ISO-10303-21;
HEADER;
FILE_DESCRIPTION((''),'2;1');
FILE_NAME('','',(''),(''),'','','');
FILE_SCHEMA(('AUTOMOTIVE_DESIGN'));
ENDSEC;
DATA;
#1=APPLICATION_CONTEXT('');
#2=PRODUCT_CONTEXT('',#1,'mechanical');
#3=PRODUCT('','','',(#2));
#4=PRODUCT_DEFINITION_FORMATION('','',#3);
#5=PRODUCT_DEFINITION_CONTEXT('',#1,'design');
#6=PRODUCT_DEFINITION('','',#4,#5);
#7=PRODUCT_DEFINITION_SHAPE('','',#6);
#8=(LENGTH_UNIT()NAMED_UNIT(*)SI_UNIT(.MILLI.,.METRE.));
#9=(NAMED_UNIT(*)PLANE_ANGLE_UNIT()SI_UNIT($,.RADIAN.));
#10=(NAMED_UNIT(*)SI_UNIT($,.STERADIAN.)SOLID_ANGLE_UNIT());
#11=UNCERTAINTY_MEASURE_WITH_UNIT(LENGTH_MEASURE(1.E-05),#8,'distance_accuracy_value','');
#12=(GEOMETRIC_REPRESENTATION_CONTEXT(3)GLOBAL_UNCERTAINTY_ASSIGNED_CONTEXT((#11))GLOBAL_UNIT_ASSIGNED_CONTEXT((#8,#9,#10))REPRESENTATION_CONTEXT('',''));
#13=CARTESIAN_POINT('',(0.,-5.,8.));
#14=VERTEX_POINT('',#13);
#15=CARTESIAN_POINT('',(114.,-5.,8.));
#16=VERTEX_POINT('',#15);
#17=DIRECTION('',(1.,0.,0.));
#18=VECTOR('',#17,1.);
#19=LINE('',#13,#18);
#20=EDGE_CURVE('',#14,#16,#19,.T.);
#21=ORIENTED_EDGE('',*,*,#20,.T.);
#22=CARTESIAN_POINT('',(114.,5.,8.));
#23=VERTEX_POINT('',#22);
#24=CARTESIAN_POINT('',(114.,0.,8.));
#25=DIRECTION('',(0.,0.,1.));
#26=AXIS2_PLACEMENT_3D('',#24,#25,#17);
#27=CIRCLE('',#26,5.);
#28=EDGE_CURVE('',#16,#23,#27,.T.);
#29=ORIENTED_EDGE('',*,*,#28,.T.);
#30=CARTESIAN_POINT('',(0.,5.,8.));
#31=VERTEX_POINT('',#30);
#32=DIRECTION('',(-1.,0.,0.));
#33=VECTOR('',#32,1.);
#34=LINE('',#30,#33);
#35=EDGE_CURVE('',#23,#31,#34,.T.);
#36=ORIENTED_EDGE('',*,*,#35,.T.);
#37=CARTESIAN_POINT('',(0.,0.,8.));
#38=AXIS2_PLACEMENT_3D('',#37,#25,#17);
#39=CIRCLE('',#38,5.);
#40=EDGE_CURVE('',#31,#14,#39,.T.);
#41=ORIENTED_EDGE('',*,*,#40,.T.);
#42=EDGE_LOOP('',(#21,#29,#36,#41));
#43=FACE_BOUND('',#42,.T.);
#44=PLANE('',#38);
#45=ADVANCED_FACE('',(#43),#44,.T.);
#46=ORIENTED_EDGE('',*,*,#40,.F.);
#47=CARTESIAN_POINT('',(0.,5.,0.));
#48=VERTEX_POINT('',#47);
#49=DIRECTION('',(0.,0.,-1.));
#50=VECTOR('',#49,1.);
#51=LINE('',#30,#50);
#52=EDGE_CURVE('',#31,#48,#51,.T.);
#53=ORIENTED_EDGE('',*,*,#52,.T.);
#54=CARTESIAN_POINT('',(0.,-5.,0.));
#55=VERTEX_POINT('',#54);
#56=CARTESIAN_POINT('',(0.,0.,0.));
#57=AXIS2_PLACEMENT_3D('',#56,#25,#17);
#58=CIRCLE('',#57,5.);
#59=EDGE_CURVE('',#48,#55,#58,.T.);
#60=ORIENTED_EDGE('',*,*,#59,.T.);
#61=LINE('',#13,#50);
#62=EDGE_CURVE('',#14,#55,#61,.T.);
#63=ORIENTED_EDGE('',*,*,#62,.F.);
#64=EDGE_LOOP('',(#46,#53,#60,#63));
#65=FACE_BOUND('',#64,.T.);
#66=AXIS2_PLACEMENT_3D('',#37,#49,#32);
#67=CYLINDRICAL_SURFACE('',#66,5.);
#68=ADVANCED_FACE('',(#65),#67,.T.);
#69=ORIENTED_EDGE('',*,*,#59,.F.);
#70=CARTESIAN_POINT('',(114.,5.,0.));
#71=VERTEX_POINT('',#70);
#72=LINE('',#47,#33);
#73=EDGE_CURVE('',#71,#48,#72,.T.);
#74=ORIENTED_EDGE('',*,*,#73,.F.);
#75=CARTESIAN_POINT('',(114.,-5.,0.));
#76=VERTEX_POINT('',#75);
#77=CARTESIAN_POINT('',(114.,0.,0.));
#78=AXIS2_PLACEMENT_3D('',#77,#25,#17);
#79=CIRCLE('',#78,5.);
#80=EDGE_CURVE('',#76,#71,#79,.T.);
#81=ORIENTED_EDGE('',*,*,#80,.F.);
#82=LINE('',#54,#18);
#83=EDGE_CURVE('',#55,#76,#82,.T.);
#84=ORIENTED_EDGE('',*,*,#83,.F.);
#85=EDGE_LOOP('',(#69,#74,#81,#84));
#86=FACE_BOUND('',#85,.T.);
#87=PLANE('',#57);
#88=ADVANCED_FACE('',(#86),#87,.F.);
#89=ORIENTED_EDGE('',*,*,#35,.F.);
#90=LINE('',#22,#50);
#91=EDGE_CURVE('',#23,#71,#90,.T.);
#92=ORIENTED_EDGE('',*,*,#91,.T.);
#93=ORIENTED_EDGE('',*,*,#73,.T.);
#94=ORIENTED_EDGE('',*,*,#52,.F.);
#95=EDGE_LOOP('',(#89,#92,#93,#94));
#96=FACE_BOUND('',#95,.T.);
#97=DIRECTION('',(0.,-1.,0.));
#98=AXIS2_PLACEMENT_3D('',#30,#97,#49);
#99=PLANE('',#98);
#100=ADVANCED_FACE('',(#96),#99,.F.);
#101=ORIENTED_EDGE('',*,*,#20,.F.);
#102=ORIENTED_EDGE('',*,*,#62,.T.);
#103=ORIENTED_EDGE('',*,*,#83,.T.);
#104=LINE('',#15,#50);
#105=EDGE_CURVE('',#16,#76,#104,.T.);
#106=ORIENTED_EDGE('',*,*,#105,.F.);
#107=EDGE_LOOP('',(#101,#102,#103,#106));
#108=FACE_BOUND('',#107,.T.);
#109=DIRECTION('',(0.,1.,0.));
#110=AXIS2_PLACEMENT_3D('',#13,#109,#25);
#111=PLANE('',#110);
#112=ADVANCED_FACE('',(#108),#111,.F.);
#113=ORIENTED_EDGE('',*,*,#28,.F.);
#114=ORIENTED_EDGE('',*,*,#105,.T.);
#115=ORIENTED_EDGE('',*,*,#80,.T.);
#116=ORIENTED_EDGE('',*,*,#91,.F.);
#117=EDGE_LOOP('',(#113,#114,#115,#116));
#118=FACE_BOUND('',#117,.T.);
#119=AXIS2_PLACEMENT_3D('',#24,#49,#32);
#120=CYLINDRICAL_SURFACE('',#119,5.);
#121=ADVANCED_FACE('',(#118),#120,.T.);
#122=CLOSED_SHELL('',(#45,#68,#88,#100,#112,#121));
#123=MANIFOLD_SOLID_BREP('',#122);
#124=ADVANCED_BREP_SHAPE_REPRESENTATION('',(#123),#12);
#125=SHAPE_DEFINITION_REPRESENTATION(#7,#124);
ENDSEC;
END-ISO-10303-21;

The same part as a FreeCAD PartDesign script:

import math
import FreeCAD as App
import Part
import Sketcher
Q = App.Units.Quantity

doc = App.newDocument("Part")
body = doc.addObject("PartDesign::Body", "Body")

# Sketch on XY plane
sketch1 = body.newObject("Sketcher::SketchObject", "Sketch")
sketch1.AttachmentSupport = (doc.getObject("XY_Plane"), [""])
sketch1.MapMode = "FlatFace"
sketch1.addGeometry([
    Part.LineSegment(App.Vector(114, 5, 0), App.Vector(0, 5, 0)),
    Part.ArcOfCircle(Part.Circle(App.Vector(0, 0, 0), App.Vector(0, 0, 1), 5), math.radians(90), math.radians(270)),
    Part.LineSegment(App.Vector(0, -5, 0), App.Vector(114, -5, 0)),
    Part.ArcOfCircle(Part.Circle(App.Vector(114, 0, 0), App.Vector(0, 0, 1), 5), math.radians(-90), math.radians(90)),
], False)
sketch1.addConstraint([
    Sketcher.Constraint("Tangent", 0, 2, 1, 1),
    Sketcher.Constraint("Tangent", 1, 2, 2, 1),
    Sketcher.Constraint("Tangent", 2, 2, 3, 1),
    Sketcher.Constraint("Tangent", 3, 2, 0, 1),
    Sketcher.Constraint("Horizontal", 0),
    Sketcher.Constraint("Horizontal", 2),
    Sketcher.Constraint("Coincident", 1, 3, -1, 1),
    Sketcher.Constraint("Radius", 1, Q("5 mm")),
    Sketcher.Constraint("DistanceX", 0, 2, 0, 1, Q("114 mm")),
])
pad1 = body.newObject("PartDesign::Pad", "Pad")
pad1.Profile = sketch1
pad1.Length = 8

doc.recompute()
